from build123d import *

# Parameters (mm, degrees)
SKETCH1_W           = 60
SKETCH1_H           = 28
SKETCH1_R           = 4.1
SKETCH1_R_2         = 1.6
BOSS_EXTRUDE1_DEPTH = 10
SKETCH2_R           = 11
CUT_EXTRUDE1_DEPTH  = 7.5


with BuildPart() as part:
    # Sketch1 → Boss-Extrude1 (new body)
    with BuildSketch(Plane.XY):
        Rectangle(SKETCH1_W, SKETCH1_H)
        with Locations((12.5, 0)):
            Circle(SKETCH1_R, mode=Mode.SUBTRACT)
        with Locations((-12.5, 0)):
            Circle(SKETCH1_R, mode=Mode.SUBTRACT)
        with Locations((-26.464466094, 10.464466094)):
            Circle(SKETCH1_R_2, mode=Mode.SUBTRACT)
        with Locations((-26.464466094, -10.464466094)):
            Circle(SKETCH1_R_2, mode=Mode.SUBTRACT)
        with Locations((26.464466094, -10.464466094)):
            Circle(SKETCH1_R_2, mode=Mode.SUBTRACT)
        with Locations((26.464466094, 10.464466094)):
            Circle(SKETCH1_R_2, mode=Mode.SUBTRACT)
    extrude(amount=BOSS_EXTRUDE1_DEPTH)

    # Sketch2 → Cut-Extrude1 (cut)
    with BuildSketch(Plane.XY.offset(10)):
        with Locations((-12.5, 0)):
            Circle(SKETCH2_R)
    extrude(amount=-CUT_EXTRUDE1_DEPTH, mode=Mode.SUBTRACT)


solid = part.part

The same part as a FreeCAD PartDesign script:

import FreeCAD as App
import Part
import Sketcher
from FreeCAD import Vector
Q = App.Units.Quantity

doc = App.newDocument("Part")
params = doc.addObject("Spreadsheet::Sheet", "Params")
for row, (alias, value) in enumerate([
    ("sketch1_diameter", "3.2 mm"),
    ("sketch1_diameter2", "8.2 mm"),
    ("sketch1_width", "60 mm"),
    ("sketch1_height", "28 mm"),
    ("pad1_length", "10 mm"),
    ("sketch2_diameter", "22 mm"),
    ("pocket1_length", "7.5 mm"),
], start=1):
    params.set(f"A{row}", alias)
    params.set(f"B{row}", "=" + value)
    params.setAlias(f"B{row}", alias)

body = doc.addObject("PartDesign::Body", "Body")

# Sketch on XY plane
sketch1 = body.newObject("Sketcher::SketchObject", "Sketch")
sketch1.AttachmentSupport = (doc.getObject("XY_Plane"), [""])
sketch1.MapMode = "FlatFace"
sketch1.addGeometry(Part.LineSegment(Vector(-30, 14, 0), Vector(-30, -14, 0)), False)
sketch1.addGeometry(Part.LineSegment(Vector(-30, -14, 0), Vector(30, -14, 0)), False)
sketch1.addGeometry(Part.LineSegment(Vector(30, -14, 0), Vector(30, 14, 0)), False)
sketch1.addGeometry(Part.LineSegment(Vector(30, 14, 0), Vector(-30, 14, 0)), False)
sketch1.addGeometry(Part.Circle(Vector(-26.5, -10.5, 0), Vector(0, 0, 1), 1.6), False)
sketch1.addGeometry(Part.Circle(Vector(-12.5, 0, 0), Vector(0, 0, 1), 4.1), False)
sketch1.addGeometry(Part.Circle(Vector(26.5, -10.5, 0), Vector(0, 0, 1), 1.6), False)
sketch1.addGeometry(Part.Circle(Vector(12.5, 0, 0), Vector(0, 0, 1), 4.1), False)
sketch1.addGeometry(Part.Circle(Vector(-26.5, 10.5, 0), Vector(0, 0, 1), 1.6), False)
sketch1.addGeometry(Part.Circle(Vector(26.5, 10.5, 0), Vector(0, 0, 1), 1.6), False)
sketch1.addConstraint(Sketcher.Constraint("Coincident", 0, 2, 1, 1))
sketch1.addConstraint(Sketcher.Constraint("Coincident", 1, 2, 2, 1))
sketch1.addConstraint(Sketcher.Constraint("Coincident", 2, 2, 3, 1))
sketch1.addConstraint(Sketcher.Constraint("Coincident", 3, 2, 0, 1))
sketch1.addConstraint(Sketcher.Constraint("Vertical", 0))
sketch1.addConstraint(Sketcher.Constraint("Horizontal", 1))
sketch1.addConstraint(Sketcher.Constraint("Vertical", 2))
sketch1.addConstraint(Sketcher.Constraint("Horizontal", 3))
sketch1.addConstraint(Sketcher.Constraint("Equal", 4, 6))
sketch1.addConstraint(Sketcher.Constraint("Equal", 5, 7))
sketch1.addConstraint(Sketcher.Constraint("Equal", 6, 8))
sketch1.addConstraint(Sketcher.Constraint("Equal", 8, 9))
sketch1.addConstraint(Sketcher.Constraint("Symmetric", 5, 3, 7, 3, -1, 1))
sketch1.addConstraint(Sketcher.Constraint("Symmetric", 6, 3, 8, 3, -1, 1))
sketch1.addConstraint(Sketcher.Constraint("Symmetric", 4, 3, 9, 3, -1, 1))
sketch1.addConstraint(Sketcher.Constraint("Symmetric", 0, 2, 2, 2, -1, 1))
sketch1.addConstraint(Sketcher.Constraint("Symmetric", 4, 3, 6, 3, -2))
sketch1.addConstraint(Sketcher.Constraint("PointOnObject", 5, 3, -1))
sketch1.addConstraint(Sketcher.Constraint("Diameter", 4, Q("3.2 mm")))
sketch1.addConstraint(Sketcher.Constraint("Diameter", 5, Q("8.2 mm")))
sketch1.addConstraint(Sketcher.Constraint("DistanceX", 1, 1, 1, 2, Q("60 mm")))
sketch1.addConstraint(Sketcher.Constraint("DistanceY", 0, 2, 0, 1, Q("28 mm")))
sketch1.addConstraint(Sketcher.Constraint("DistanceX", 5, 3, 7, 3, Q("25 mm")))
sketch1.addConstraint(Sketcher.Constraint("DistanceX", 4, 3, -1, 1, Q("26.464466 mm")))
sketch1.addConstraint(Sketcher.Constraint("DistanceY", 4, 3, -1, 1, Q("10.464466 mm")))
sketch1.setExpression("Constraints[18]", "Params.sketch1_diameter")
sketch1.setExpression("Constraints[19]", "Params.sketch1_diameter2")
sketch1.setExpression("Constraints[20]", "Params.sketch1_width")
sketch1.setExpression("Constraints[21]", "Params.sketch1_height")
pad1 = body.newObject("PartDesign::Pad", "Pad")
pad1.Profile = sketch1
pad1.setExpression("Length", "Params.pad1_length")

# Sketch on XY plane
sketch2 = body.newObject("Sketcher::SketchObject", "Sketch001")
sketch2.AttachmentSupport = (doc.getObject("XY_Plane"), [""])
sketch2.MapMode = "FlatFace"
sketch2.AttachmentOffset = App.Placement(Vector(0, 0, 10), App.Rotation())
sketch2.addGeometry(Part.Circle(Vector(-12, 0, 0), Vector(0, 0, 1), 11), False)
sketch2.addConstraint(Sketcher.Constraint("PointOnObject", 0, 3, -1))
sketch2.addConstraint(Sketcher.Constraint("Diameter", 0, Q("22 mm")))
sketch2.addConstraint(Sketcher.Constraint("DistanceX", 0, 3, -1, 1, Q("12.5 mm")))
sketch2.setExpression("Constraints[1]", "Params.sketch2_diameter")
pocket1 = body.newObject("PartDesign::Pocket", "Pocket")
pocket1.Profile = sketch2
pocket1.setExpression("Length", "Params.pocket1_length")

doc.recompute()
